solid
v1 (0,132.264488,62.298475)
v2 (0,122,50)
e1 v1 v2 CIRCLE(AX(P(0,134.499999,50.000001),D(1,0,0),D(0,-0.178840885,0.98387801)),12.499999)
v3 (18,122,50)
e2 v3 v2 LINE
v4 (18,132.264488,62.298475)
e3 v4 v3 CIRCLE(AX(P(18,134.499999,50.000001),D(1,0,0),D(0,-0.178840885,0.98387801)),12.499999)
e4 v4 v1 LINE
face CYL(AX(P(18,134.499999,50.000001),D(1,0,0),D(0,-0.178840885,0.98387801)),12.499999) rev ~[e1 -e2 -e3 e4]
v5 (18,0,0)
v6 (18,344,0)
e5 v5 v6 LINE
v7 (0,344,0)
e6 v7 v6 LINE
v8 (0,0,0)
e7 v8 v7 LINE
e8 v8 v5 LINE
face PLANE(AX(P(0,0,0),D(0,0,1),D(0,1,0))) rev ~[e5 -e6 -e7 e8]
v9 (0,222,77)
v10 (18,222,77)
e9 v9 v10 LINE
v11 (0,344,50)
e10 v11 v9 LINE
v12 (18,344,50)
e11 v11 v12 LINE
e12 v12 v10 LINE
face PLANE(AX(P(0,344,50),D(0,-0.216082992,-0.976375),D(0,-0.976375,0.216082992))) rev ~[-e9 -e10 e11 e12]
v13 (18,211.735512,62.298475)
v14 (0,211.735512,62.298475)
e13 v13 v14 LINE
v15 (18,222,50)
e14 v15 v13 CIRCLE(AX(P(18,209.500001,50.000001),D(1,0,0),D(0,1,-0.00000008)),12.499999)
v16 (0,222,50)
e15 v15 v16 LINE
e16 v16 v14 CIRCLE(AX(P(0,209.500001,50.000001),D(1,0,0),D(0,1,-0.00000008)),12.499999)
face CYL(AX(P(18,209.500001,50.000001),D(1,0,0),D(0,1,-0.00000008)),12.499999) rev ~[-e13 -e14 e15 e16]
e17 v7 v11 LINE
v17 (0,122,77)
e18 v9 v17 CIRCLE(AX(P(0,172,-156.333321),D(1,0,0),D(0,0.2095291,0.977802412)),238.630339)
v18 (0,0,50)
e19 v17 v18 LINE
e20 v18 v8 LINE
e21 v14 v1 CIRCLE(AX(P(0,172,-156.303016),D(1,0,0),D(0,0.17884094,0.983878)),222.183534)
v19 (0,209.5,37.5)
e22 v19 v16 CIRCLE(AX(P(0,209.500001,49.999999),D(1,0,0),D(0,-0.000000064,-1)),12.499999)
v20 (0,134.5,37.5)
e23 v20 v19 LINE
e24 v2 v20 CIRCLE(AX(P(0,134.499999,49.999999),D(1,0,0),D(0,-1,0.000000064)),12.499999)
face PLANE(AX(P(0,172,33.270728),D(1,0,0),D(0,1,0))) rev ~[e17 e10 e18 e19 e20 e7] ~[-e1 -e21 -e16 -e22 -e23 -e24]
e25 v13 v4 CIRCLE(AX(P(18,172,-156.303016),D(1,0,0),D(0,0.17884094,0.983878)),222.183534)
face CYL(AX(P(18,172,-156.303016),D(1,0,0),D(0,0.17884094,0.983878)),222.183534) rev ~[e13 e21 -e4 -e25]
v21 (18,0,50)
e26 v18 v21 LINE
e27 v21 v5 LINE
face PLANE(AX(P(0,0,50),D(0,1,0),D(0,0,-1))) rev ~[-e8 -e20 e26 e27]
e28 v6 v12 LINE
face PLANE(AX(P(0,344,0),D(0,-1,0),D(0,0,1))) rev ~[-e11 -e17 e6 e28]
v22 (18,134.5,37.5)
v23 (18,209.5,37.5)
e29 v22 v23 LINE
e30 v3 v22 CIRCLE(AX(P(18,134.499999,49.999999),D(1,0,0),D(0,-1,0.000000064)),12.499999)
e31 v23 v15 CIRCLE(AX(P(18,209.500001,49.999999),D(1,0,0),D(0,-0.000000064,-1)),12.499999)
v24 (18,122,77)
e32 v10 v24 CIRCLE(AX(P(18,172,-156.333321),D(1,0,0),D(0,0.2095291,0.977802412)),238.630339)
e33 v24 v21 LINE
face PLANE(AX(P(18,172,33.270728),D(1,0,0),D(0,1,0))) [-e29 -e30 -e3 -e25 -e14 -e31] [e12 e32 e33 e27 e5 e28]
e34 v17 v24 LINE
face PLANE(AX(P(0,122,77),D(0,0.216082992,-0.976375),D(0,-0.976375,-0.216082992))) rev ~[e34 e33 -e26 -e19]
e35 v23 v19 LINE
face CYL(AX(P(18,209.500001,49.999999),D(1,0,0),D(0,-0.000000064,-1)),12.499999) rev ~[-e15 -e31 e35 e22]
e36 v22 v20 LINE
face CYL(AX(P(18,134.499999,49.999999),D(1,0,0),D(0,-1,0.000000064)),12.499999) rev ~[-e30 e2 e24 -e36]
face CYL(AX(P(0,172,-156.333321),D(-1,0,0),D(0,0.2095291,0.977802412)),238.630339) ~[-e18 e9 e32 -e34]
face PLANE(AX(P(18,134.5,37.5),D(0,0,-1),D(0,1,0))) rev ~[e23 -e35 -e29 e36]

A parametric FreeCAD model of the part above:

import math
import FreeCAD as App
import Part
import Sketcher
Q = App.Units.Quantity

doc = App.newDocument("Part")
body = doc.addObject("PartDesign::Body", "Body")

sketch1 = body.newObject("Sketcher::SketchObject", "Sketch")
sketch1.AttachmentSupport = (doc.getObject("YZ_Plane"), [""])
sketch1.MapMode = "FlatFace"
sketch1.addGeometry([
    Part.LineSegment(App.Vector(0, 50, 0), App.Vector(0, 0, 0)),
    Part.LineSegment(App.Vector(0, 0, 0), App.Vector(344, 0, 0)),
    Part.LineSegment(App.Vector(344, 0, 0), App.Vector(344, 50, 0)),
    Part.LineSegment(App.Vector(344, 50, 0), App.Vector(222, 77, 0)),
    Part.ArcOfCircle(Part.Circle(App.Vector(172, -156, 0), App.Vector(0, 0, 1), 239), math.radians(78), math.radians(102)),
    Part.LineSegment(App.Vector(122, 77, 0), App.Vector(0, 50, 0)),
], False)
sketch1.addConstraint([
    Sketcher.Constraint("Coincident", 0, 2, 1, 1),
    Sketcher.Constraint("Coincident", 1, 2, 2, 1),
    Sketcher.Constraint("Coincident", 2, 2, 3, 1),
    Sketcher.Constraint("Coincident", 3, 2, 4, 1),
    Sketcher.Constraint("Coincident", 4, 2, 5, 1),
    Sketcher.Constraint("Coincident", 5, 2, 0, 1),
    Sketcher.Constraint("Vertical", 0),
    Sketcher.Constraint("Horizontal", 1),
    Sketcher.Constraint("Vertical", 2),
    Sketcher.Constraint("Coincident", 0, 2, -1, 1),
    Sketcher.Constraint("Horizontal", 3, 2, 4, 2),
    Sketcher.Constraint("Horizontal", 2, 2, 5, 2),
    Sketcher.Constraint("Equal", 3, 5),
    Sketcher.Constraint("DistanceX", 1, 1, 1, 2, Q("344 mm")),
    Sketcher.Constraint("DistanceY", 0, 2, 0, 1, Q("50 mm")),
    Sketcher.Constraint("DistanceX", -1, 1, 3, 2, Q("222 mm")),
    Sketcher.Constraint("DistanceY", -1, 1, 3, 2, Q("77 mm")),
    Sketcher.Constraint("Radius", 4, Q("238.630339 mm")),
])
pad1 = body.newObject("PartDesign::Pad", "Pad")
pad1.Profile = sketch1
pad1.Length = 18

sketch2 = body.newObject("Sketcher::SketchObject", "Sketch001")
sketch2.AttachmentSupport = (doc.getObject("YZ_Plane"), [""])
sketch2.MapMode = "FlatFace"
sketch2.AttachmentOffset = App.Placement(App.Vector(0, 0, 18), App.Rotation())
sketch2.addGeometry([
    Part.ArcOfCircle(Part.Circle(App.Vector(134, 50, 0), App.Vector(0, 0, 1), 12), math.radians(180), math.radians(270)),
    Part.LineSegment(App.Vector(134, 38, 0), App.Vector(210, 38, 0)),
    Part.ArcOfCircle(Part.Circle(App.Vector(210, 50, 0), App.Vector(0, 0, 1), 12), math.radians(-90), math.radians(0)),
    Part.ArcOfCircle(Part.Circle(App.Vector(210, 50, 0), App.Vector(0, 0, 1), 12), math.radians(0), math.radians(80)),
    Part.ArcOfCircle(Part.Circle(App.Vector(172, -156, 0), App.Vector(0, 0, 1), 222), math.radians(80), math.radians(100)),
    Part.ArcOfCircle(Part.Circle(App.Vector(134, 50, 0), App.Vector(0, 0, 1), 12), math.radians(100), math.radians(180)),
], False)
sketch2.addConstraint([
    Sketcher.Constraint("Tangent", 0, 2, 1, 1),
    Sketcher.Constraint("Tangent", 1, 2, 2, 1),
    Sketcher.Constraint("Tangent", 2, 2, 3, 1),
    Sketcher.Constraint("Tangent", 3, 2, 4, 1),
    Sketcher.Constraint("Tangent", 4, 2, 5, 1),
    Sketcher.Constraint("Tangent", 5, 2, 0, 1),
    Sketcher.Constraint("Horizontal", 1),
    Sketcher.Constraint("Equal", 0, 2),
    Sketcher.Constraint("Equal", 2, 3),
    Sketcher.Constraint("Equal", 3, 5),
    Sketcher.Constraint("Horizontal", 5, 3, 2, 2),
    Sketcher.Constraint("Horizontal", 2, 2, 5, 2),
    Sketcher.Constraint("Radius", 0, Q("12.499999 mm")),
    Sketcher.Constraint("DistanceX", 1, 1, 1, 2, Q("75 mm")),
    Sketcher.Constraint("DistanceY", -1, 1, 0, 3, Q("49.999999 mm")),
    Sketcher.Constraint("DistanceX", -1, 1, 4, 3, Q("172 mm")),
    Sketcher.Constraint("Radius", 4, Q("222.183534 mm")),
])
pocket1 = body.newObject("PartDesign::Pocket", "Pocket")
pocket1.Profile = sketch2
pocket1.Length = 25

doc.recompute()
